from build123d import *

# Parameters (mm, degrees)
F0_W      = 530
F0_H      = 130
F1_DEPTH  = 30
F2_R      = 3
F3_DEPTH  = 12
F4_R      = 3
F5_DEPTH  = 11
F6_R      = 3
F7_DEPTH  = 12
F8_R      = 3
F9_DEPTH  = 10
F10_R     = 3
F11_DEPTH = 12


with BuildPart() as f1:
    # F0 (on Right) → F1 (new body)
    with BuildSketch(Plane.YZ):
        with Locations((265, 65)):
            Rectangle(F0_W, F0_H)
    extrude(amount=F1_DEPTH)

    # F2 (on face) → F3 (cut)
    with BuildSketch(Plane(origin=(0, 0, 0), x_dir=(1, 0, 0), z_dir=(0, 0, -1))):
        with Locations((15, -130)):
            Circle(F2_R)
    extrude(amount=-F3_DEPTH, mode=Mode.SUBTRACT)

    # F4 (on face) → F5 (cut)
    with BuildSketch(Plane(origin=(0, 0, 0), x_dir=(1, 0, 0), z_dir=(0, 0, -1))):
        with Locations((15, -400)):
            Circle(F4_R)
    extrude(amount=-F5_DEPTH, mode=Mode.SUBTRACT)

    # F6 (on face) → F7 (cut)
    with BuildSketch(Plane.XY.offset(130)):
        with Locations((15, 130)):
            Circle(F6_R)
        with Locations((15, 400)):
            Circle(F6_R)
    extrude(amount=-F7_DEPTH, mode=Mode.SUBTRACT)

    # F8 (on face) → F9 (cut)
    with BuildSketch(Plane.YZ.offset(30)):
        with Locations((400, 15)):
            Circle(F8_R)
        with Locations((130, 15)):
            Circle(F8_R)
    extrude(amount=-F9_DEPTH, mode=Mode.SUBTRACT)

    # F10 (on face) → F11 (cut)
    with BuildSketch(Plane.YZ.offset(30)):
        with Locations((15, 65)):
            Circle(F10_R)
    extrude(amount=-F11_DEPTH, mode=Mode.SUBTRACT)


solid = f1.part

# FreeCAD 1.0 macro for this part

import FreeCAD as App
import Part
import Sketcher

V = App.Vector
Q = App.Units.Quantity

doc = App.newDocument("Part")
params = doc.addObject("Spreadsheet::Sheet", "Params")
for row, (alias, value) in enumerate([
    ("sketch1_width", "530 mm"),
    ("sketch1_height", "130 mm"),
    ("pad1_length", "30 mm"),
    ("sketch2_diameter", "6 mm"),
    ("pocket1_length", "12 mm"),
    ("sketch3_diameter", "6 mm"),
    ("pocket2_length", "11 mm"),
    ("sketch4_diameter", "6 mm"),
    ("pocket3_length", "12 mm"),
    ("sketch5_diameter", "6 mm"),
    ("pocket4_length", "10 mm"),
    ("sketch6_diameter", "6 mm"),
    ("pocket5_length", "12 mm"),
], start=1):
    params.set(f"A{row}", alias)
    params.set(f"B{row}", "=" + value)
    params.setAlias(f"B{row}", alias)

body = doc.addObject("PartDesign::Body", "Body")

# Sketch on YZ plane
sketch1 = doc.addObject("Sketcher::SketchObject", "Sketch")
body.addObject(sketch1)
sketch1.AttachmentSupport = (doc.YZ_Plane, [""])
sketch1.MapMode = "FlatFace"
sketch1.addGeometry(Part.LineSegment(V(0, 130, 0), V(0, 0, 0)), False)
sketch1.addGeometry(Part.LineSegment(V(0, 0, 0), V(530, 0, 0)), False)
sketch1.addGeometry(Part.LineSegment(V(530, 0, 0), V(530, 130, 0)), False)
sketch1.addGeometry(Part.LineSegment(V(530, 130, 0), V(0, 130, 0)), False)
sketch1.addConstraint(Sketcher.Constraint("Coincident", 0, 2, 1, 1))
sketch1.addConstraint(Sketcher.Constraint("Coincident", 1, 2, 2, 1))
sketch1.addConstraint(Sketcher.Constraint("Coincident", 2, 2, 3, 1))
sketch1.addConstraint(Sketcher.Constraint("Coincident", 3, 2, 0, 1))
sketch1.addConstraint(Sketcher.Constraint("Vertical", 0))
sketch1.addConstraint(Sketcher.Constraint("Horizontal", 1))
sketch1.addConstraint(Sketcher.Constraint("Vertical", 2))
sketch1.addConstraint(Sketcher.Constraint("Horizontal", 3))
sketch1.addConstraint(Sketcher.Constraint("Coincident", 0, 2, -1, 1))
sketch1.addConstraint(Sketcher.Constraint("DistanceX", 1, 1, 1, 2, Q("530 mm")))
sketch1.addConstraint(Sketcher.Constraint("DistanceY", 0, 2, 0, 1, Q("130 mm")))
sketch1.setExpression("Constraints[9]", "Params.sketch1_width")
sketch1.setExpression("Constraints[10]", "Params.sketch1_height")
pad1 = doc.addObject("PartDesign::Pad", "Pad")
body.addObject(pad1)
pad1.Profile = sketch1
pad1.setExpression("Length", "Params.pad1_length")

# Sketch on XY plane
sketch2 = doc.addObject("Sketcher::SketchObject", "Sketch001")
body.addObject(sketch2)
sketch2.AttachmentSupport = (doc.XY_Plane, [""])
sketch2.MapMode = "FlatFace"
sketch2.addGeometry(Part.Circle(V(15, 130, 0), V(0, 0, 1), 3), False)
sketch2.addConstraint(Sketcher.Constraint("Diameter", 0, Q("6 mm")))
sketch2.addConstraint(Sketcher.Constraint("DistanceX", -1, 1, 0, 3, Q("15 mm")))
sketch2.addConstraint(Sketcher.Constraint("DistanceY", -1, 1, 0, 3, Q("130 mm")))
sketch2.setExpression("Constraints[0]", "Params.sketch2_diameter")
pocket1 = doc.addObject("PartDesign::Pocket", "Pocket")
body.addObject(pocket1)
pocket1.Profile = sketch2
pocket1.setExpression("Length", "Params.pocket1_length")
pocket1.Reversed = True

# Sketch on XY plane
sketch3 = doc.addObject("Sketcher::SketchObject", "Sketch002")
body.addObject(sketch3)
sketch3.AttachmentSupport = (doc.XY_Plane, [""])
sketch3.MapMode = "FlatFace"
sketch3.addGeometry(Part.Circle(V(15, 400, 0), V(0, 0, 1), 3), False)
sketch3.addConstraint(Sketcher.Constraint("Diameter", 0, Q("6 mm")))
sketch3.addConstraint(Sketcher.Constraint("DistanceX", -1, 1, 0, 3, Q("15 mm")))
sketch3.addConstraint(Sketcher.Constraint("DistanceY", -1, 1, 0, 3, Q("400 mm")))
sketch3.setExpression("Constraints[0]", "Params.sketch3_diameter")
pocket2 = doc.addObject("PartDesign::Pocket", "Pocket001")
body.addObject(pocket2)
pocket2.Profile = sketch3
pocket2.setExpression("Length", "Params.pocket2_length")
pocket2.Reversed = True

# Sketch on XY plane
sketch4 = doc.addObject("Sketcher::SketchObject", "Sketch003")
body.addObject(sketch4)
sketch4.AttachmentSupport = (doc.XY_Plane, [""])
sketch4.MapMode = "FlatFace"
sketch4.AttachmentOffset = App.Placement(V(0, 0, 130), App.Rotation())
sketch4.addGeometry(Part.Circle(V(15, 130, 0), V(0, 0, 1), 3), False)
sketch4.addGeometry(Part.Circle(V(15, 400, 0), V(0, 0, 1), 3), False)
sketch4.addConstraint(Sketcher.Constraint("Equal", 0, 1))
sketch4.addConstraint(Sketcher.Constraint("Vertical", 0, 3, 1, 3))
sketch4.addConstraint(Sketcher.Constraint("Diameter", 0, Q("6 mm")))
sketch4.addConstraint(Sketcher.Constraint("DistanceX", -1, 1, 0, 3, Q("15 mm")))
sketch4.addConstraint(Sketcher.Constraint("DistanceY", -1, 1, 0, 3, Q("130 mm")))
sketch4.addConstraint(Sketcher.Constraint("DistanceY", -1, 1, 1, 3, Q("400 mm")))
sketch4.setExpression("Constraints[2]", "Params.sketch4_diameter")
pocket3 = doc.addObject("PartDesign::Pocket", "Pocket002")
body.addObject(pocket3)
pocket3.Profile = sketch4
pocket3.setExpression("Length", "Params.pocket3_length")

# Sketch on YZ plane
sketch5 = doc.addObject("Sketcher::SketchObject", "Sketch004")
body.addObject(sketch5)
sketch5.AttachmentSupport = (doc.YZ_Plane, [""])
sketch5.MapMode = "FlatFace"
sketch5.AttachmentOffset = App.Placement(V(0, 0, 30), App.Rotation())
sketch5.addGeometry(Part.Circle(V(400, 15, 0), V(0, 0, 1), 3), False)
sketch5.addGeometry(Part.Circle(V(130, 15, 0), V(0, 0, 1), 3), False)
sketch5.addConstraint(Sketcher.Constraint("Equal", 0, 1))
sketch5.addConstraint(Sketcher.Constraint("Horizontal", 0, 3, 1, 3))
sketch5.addConstraint(Sketcher.Constraint("Diameter", 0, Q("6 mm")))
sketch5.addConstraint(Sketcher.Constraint("DistanceX", -1, 1, 0, 3, Q("400 mm")))
sketch5.addConstraint(Sketcher.Constraint("DistanceY", -1, 1, 0, 3, Q("15 mm")))
sketch5.addConstraint(Sketcher.Constraint("DistanceX", -1, 1, 1, 3, Q("130 mm")))
sketch5.setExpression("Constraints[2]", "Params.sketch5_diameter")
pocket4 = doc.addObject("PartDesign::Pocket", "Pocket003")
body.addObject(pocket4)
pocket4.Profile = sketch5
pocket4.setExpression("Length", "Params.pocket4_length")

# Sketch on YZ plane
sketch6 = doc.addObject("Sketcher::SketchObject", "Sketch005")
body.addObject(sketch6)
sketch6.AttachmentSupport = (doc.YZ_Plane, [""])
sketch6.MapMode = "FlatFace"
sketch6.AttachmentOffset = App.Placement(V(0, 0, 30), App.Rotation())
sketch6.addGeometry(Part.Circle(V(15, 65, 0), V(0, 0, 1), 3), False)
sketch6.addConstraint(Sketcher.Constraint("Diameter", 0, Q("6 mm")))
sketch6.addConstraint(Sketcher.Constraint("DistanceX", -1, 1, 0, 3, Q("15 mm")))
sketch6.addConstraint(Sketcher.Constraint("DistanceY", -1, 1, 0, 3, Q("65 mm")))
sketch6.setExpression("Constraints[0]", "Params.sketch6_diameter")
pocket5 = doc.addObject("PartDesign::Pocket", "Pocket004")
body.addObject(pocket5)
pocket5.Profile = sketch6
pocket5.setExpression("Length", "Params.pocket5_length")

doc.recompute()
